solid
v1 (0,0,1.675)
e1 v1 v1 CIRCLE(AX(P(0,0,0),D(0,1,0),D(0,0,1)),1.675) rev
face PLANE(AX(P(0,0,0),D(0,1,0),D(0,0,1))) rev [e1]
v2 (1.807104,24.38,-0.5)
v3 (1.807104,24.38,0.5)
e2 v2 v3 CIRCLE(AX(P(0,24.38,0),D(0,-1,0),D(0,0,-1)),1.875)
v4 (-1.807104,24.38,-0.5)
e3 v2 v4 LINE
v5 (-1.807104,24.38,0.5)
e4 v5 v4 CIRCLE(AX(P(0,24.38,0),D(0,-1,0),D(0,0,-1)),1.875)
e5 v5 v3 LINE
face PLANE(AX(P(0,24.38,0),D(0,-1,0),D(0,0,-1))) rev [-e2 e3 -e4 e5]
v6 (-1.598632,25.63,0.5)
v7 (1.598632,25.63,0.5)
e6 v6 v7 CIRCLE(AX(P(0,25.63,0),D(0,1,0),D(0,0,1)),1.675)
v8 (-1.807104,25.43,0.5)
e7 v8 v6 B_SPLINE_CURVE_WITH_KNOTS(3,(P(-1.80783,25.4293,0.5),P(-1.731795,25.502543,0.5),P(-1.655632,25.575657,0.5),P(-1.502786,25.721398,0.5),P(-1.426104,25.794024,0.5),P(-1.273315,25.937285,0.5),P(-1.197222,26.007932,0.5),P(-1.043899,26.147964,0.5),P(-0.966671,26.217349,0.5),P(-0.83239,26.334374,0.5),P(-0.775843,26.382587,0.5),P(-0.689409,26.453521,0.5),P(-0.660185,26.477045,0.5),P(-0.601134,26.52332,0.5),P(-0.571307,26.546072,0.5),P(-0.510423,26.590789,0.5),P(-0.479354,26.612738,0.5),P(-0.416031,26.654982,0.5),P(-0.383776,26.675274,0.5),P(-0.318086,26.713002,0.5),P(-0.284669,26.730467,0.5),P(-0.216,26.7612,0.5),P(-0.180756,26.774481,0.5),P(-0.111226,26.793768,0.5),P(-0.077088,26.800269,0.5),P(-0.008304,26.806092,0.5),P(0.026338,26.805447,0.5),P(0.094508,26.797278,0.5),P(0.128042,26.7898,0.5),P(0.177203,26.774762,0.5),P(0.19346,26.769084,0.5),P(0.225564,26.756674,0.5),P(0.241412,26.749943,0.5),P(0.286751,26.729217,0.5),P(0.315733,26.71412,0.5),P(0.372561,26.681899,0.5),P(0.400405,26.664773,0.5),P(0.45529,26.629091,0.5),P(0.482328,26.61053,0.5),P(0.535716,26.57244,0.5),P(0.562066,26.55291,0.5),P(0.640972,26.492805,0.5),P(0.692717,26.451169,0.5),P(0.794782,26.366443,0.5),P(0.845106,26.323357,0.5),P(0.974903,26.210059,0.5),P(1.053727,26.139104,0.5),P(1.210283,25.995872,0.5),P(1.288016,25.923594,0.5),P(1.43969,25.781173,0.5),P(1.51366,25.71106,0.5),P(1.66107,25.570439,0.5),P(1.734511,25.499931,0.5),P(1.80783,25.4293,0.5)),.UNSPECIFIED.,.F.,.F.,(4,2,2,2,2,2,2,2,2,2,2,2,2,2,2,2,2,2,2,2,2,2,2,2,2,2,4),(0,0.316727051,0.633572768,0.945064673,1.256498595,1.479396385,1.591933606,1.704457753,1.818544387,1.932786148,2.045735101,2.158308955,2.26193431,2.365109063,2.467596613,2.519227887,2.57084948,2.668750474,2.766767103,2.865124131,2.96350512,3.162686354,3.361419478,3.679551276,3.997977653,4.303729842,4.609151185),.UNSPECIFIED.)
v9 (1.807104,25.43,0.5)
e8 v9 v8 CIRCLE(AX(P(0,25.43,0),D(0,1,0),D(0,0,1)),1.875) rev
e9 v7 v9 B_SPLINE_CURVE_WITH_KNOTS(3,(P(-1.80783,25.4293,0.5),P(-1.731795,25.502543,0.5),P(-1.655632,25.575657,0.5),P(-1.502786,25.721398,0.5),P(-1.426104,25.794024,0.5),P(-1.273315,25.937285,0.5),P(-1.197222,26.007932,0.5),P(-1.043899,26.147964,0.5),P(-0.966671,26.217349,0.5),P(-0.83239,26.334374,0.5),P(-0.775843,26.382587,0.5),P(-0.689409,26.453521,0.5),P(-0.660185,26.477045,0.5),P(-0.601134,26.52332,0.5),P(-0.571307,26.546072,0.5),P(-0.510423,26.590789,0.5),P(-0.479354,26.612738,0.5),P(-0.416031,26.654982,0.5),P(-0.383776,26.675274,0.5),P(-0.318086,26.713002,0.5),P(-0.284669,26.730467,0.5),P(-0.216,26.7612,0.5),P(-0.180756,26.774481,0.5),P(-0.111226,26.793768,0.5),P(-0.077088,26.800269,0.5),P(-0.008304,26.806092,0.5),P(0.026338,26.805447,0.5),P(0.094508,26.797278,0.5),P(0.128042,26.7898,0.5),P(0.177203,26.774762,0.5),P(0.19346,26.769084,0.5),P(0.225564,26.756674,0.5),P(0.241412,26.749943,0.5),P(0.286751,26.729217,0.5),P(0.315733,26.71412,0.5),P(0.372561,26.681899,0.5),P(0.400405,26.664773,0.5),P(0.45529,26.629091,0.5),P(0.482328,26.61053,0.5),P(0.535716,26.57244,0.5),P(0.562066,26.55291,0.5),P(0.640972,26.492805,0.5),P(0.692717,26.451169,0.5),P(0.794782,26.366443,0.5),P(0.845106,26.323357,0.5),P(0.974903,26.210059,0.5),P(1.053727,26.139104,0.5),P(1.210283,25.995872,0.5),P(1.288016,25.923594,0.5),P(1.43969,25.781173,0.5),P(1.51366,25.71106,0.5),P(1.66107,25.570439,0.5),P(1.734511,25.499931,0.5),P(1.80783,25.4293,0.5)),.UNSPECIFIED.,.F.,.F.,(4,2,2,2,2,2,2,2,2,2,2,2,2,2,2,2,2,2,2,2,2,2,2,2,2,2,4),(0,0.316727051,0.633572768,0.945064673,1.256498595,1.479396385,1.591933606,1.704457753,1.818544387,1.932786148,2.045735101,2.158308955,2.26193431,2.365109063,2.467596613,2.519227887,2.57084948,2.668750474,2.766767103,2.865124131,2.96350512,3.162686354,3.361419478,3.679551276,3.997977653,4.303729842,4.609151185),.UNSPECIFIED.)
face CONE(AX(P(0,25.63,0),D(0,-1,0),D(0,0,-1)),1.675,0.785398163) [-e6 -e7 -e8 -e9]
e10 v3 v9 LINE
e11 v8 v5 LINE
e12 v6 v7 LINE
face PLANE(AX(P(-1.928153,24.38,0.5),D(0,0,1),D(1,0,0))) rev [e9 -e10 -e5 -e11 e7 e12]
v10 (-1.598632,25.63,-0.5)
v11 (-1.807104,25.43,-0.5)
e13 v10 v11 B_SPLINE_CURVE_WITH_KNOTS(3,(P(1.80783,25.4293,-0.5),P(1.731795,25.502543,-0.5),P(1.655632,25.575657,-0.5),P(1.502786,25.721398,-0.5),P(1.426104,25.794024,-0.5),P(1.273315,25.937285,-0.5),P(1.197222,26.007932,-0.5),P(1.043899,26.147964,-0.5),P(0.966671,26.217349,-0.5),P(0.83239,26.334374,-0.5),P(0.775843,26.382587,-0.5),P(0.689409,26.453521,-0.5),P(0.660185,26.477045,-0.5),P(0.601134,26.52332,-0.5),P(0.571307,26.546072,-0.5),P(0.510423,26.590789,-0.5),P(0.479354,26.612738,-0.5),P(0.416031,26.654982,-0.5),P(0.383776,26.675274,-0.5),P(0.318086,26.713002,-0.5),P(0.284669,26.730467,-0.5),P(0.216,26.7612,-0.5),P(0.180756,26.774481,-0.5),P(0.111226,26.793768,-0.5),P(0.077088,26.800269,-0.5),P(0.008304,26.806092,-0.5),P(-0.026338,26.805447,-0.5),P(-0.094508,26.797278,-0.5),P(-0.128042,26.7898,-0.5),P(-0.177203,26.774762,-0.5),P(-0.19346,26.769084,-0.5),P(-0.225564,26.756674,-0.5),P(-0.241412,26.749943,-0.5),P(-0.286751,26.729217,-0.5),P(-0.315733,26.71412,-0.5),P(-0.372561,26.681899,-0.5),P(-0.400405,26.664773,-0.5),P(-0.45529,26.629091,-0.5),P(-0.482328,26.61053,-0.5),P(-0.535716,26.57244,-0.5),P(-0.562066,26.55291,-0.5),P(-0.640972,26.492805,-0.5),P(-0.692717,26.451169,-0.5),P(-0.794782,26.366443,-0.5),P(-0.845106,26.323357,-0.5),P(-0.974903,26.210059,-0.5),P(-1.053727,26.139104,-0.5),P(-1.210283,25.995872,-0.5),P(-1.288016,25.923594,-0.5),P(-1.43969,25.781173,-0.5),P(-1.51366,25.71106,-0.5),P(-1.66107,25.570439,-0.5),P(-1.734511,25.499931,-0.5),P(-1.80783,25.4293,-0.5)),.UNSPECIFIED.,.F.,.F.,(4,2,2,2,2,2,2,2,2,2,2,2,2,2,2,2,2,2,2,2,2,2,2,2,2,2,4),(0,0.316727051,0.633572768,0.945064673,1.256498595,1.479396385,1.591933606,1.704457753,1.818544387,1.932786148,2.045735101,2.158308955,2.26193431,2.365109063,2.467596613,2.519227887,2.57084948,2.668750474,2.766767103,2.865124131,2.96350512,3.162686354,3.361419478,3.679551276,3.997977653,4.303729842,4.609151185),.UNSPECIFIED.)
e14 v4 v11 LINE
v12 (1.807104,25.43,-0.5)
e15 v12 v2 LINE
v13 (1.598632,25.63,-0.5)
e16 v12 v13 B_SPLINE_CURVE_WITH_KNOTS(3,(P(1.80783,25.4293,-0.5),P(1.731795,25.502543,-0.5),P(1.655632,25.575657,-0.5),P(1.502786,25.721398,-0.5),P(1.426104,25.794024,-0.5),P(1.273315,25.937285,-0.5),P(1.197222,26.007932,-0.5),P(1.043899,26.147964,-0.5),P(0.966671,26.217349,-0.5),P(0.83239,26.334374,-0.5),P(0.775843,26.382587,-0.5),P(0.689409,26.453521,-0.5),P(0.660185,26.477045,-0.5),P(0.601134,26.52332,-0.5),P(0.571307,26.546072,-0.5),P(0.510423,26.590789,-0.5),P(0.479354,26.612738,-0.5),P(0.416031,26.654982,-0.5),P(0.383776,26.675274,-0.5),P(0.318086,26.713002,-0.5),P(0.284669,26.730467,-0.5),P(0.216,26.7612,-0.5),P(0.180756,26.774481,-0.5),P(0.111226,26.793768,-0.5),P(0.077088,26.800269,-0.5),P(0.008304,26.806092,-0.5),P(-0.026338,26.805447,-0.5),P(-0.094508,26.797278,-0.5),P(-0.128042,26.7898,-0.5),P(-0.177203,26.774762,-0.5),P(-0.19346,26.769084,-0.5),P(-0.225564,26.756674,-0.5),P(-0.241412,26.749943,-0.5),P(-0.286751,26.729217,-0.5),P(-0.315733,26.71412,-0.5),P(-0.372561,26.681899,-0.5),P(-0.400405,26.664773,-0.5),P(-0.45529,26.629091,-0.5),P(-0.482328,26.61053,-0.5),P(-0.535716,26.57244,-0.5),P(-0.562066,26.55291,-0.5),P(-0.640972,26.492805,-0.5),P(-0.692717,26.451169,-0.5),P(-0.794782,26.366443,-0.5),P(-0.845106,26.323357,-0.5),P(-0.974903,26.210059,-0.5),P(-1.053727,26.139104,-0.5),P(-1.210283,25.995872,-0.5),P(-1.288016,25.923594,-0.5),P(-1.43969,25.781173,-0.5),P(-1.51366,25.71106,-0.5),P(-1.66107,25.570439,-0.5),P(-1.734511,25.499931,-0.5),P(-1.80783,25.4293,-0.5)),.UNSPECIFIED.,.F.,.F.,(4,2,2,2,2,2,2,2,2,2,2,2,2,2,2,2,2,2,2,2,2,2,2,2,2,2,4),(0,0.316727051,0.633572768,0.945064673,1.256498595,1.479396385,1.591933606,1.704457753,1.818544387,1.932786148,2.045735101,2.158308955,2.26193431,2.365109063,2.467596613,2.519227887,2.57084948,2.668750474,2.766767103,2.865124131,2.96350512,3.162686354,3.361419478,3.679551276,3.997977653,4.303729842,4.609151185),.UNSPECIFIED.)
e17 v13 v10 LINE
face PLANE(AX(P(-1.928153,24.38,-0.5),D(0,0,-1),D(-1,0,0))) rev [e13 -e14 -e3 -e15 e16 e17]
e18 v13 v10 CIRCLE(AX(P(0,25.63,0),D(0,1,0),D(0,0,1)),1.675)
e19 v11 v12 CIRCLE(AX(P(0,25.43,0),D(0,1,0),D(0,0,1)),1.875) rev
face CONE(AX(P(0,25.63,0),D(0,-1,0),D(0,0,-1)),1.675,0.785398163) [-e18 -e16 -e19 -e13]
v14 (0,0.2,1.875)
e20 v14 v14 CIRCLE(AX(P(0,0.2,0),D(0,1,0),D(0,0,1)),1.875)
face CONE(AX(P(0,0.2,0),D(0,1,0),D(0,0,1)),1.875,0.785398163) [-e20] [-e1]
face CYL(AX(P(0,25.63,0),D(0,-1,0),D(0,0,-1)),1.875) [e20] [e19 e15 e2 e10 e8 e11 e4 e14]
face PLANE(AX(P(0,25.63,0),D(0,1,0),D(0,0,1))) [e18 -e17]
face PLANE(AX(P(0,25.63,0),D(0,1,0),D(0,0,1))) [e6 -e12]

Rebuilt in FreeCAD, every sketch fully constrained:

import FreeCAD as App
import Part
import Sketcher

V = App.Vector


def edges_at(feature, points):
    """Names of the edges that pass closest to the given points."""
    edges = feature.Shape.Edges
    near = lambda p: min(range(len(edges)), key=lambda i: edges[i].distToShape(Part.Vertex(*p))[0])
    return sorted({f"Edge{near(p) + 1}" for p in points})

doc = App.newDocument("Part")
params = doc.addObject("Spreadsheet::Sheet", "Params")
for row, (alias, value) in enumerate([
    ("sketch1_diameter", "3.75 mm"),
    ("pad1_length", "25.63 mm"),
    ("chamfer_size", "0.2 mm"),
    ("chamfer2_size", "0.2 mm"),
    ("sketch2_height", "1 mm"),
    ("pocket1_length", "1.25 mm"),
], start=1):
    params.set(f"A{row}", alias)
    params.set(f"B{row}", "=" + value)
    params.setAlias(f"B{row}", alias)

body = doc.addObject("PartDesign::Body", "Body")

# Sketch on XZ plane
sketch1 = body.newObject("Sketcher::SketchObject", "Sketch")
sketch1.AttachmentSupport = (doc.getObject("XZ_Plane"), [""])
sketch1.MapMode = "FlatFace"
sketch1.addGeometry(Part.Circle(V(0, 0, 0), V(0, 0, 1), 1.9), False)
sketch1.addConstraint(Sketcher.Constraint("Coincident", 0, 3, -1, 1))
sketch1.addConstraint(Sketcher.Constraint("Diameter", 0, 3.75))
sketch1.setExpression("Constraints[1]", "Params.sketch1_diameter")
pad1 = body.newObject("PartDesign::Pad", "Pad")
pad1.Profile = sketch1
pad1.setExpression("Length", "Params.pad1_length")
pad1.Reversed = True
doc.recompute()

chamfer = body.newObject("PartDesign::Chamfer", "Chamfer")
chamfer.Base = (pad1, edges_at(pad1, [(-1.875, 25.63, 0)]))
chamfer.setExpression("Size", "Params.chamfer_size")
doc.recompute()

chamfer2 = body.newObject("PartDesign::Chamfer", "Chamfer001")
chamfer2.Base = (chamfer, edges_at(chamfer, [(-1.875, 0, 0)]))
chamfer2.setExpression("Size", "Params.chamfer2_size")

# Sketch on XZ plane
sketch2 = body.newObject("Sketcher::SketchObject", "Sketch001")
sketch2.AttachmentSupport = (doc.getObject("XZ_Plane"), [""])
sketch2.MapMode = "FlatFace"
sketch2.AttachmentOffset = App.Placement(V(0, 0, -25.63), App.Rotation())
sketch2.addGeometry(Part.LineSegment(V(-1.9, -0.5, 0), V(-1.9, 0.5, 0)), False)
sketch2.addGeometry(Part.LineSegment(V(-1.9, 0.5, 0), V(1.9, 0.5, 0)), False)
sketch2.addGeometry(Part.LineSegment(V(1.9, 0.5, 0), V(1.9, -0.5, 0)), False)
sketch2.addGeometry(Part.LineSegment(V(1.9, -0.5, 0), V(-1.9, -0.5, 0)), False)
sketch2.addConstraint(Sketcher.Constraint("Coincident", 0, 2, 1, 1))
sketch2.addConstraint(Sketcher.Constraint("Coincident", 1, 2, 2, 1))
sketch2.addConstraint(Sketcher.Constraint("Coincident", 2, 2, 3, 1))
sketch2.addConstraint(Sketcher.Constraint("Coincident", 3, 2, 0, 1))
sketch2.addConstraint(Sketcher.Constraint("Vertical", 0))
sketch2.addConstraint(Sketcher.Constraint("Horizontal", 1))
sketch2.addConstraint(Sketcher.Constraint("Vertical", 2))
sketch2.addConstraint(Sketcher.Constraint("Horizontal", 3))
sketch2.addConstraint(Sketcher.Constraint("Symmetric", 0, 2, 2, 2, -1, 1))
sketch2.addConstraint(Sketcher.Constraint("DistanceY", 0, 1, 0, 2, 1.0))
sketch2.addConstraint(Sketcher.Constraint("DistanceX", 1, 1, 1, 2, 3.856306))
sketch2.setExpression("Constraints[9]", "Params.sketch2_height")
pocket1 = body.newObject("PartDesign::Pocket", "Pocket")
pocket1.Profile = sketch2
pocket1.setExpression("Length", "Params.pocket1_length")
pocket1.Reversed = True

doc.recompute()
